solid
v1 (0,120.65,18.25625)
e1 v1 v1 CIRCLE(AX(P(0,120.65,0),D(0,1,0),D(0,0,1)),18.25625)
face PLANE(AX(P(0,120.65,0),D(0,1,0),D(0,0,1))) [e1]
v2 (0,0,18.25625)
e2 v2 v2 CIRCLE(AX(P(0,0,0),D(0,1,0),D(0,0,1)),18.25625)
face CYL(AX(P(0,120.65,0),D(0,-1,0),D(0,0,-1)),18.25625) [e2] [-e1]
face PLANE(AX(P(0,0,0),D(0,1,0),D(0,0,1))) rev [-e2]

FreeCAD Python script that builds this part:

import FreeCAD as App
import Part
import Sketcher

V = App.Vector
Q = App.Units.Quantity

doc = App.newDocument("Part")
params = doc.addObject("Spreadsheet::Sheet", "Params")
for row, (alias, value) in enumerate([
    ("sketch1_diameter", "1.4375 in"),
    ("pad1_length", "4.75 in"),
], start=1):
    params.set(f"A{row}", alias)
    params.set(f"B{row}", "=" + value)
    params.setAlias(f"B{row}", alias)

body = doc.addObject("PartDesign::Body", "Body")

# Sketch on XZ plane
sketch1 = body.newObject("Sketcher::SketchObject", "Sketch")
sketch1.AttachmentSupport = (doc.getObject("XZ_Plane"), [""])
sketch1.MapMode = "FlatFace"
sketch1.addGeometry(Part.Circle(V(0, 0, 0), V(0, 0, 1), 18.25625), False)
sketch1.addConstraint([
    Sketcher.Constraint("Coincident", 0, 3, -1, 1),
    Sketcher.Constraint("Diameter", 0, Q("1.4375 in")),
])
sketch1.setExpression("Constraints[1]", "Params.sketch1_diameter")
pad1 = body.newObject("PartDesign::Pad", "Pad")
pad1.Profile = sketch1
pad1.setExpression("Length", "Params.pad1_length")
pad1.Reversed = True

doc.recompute()
